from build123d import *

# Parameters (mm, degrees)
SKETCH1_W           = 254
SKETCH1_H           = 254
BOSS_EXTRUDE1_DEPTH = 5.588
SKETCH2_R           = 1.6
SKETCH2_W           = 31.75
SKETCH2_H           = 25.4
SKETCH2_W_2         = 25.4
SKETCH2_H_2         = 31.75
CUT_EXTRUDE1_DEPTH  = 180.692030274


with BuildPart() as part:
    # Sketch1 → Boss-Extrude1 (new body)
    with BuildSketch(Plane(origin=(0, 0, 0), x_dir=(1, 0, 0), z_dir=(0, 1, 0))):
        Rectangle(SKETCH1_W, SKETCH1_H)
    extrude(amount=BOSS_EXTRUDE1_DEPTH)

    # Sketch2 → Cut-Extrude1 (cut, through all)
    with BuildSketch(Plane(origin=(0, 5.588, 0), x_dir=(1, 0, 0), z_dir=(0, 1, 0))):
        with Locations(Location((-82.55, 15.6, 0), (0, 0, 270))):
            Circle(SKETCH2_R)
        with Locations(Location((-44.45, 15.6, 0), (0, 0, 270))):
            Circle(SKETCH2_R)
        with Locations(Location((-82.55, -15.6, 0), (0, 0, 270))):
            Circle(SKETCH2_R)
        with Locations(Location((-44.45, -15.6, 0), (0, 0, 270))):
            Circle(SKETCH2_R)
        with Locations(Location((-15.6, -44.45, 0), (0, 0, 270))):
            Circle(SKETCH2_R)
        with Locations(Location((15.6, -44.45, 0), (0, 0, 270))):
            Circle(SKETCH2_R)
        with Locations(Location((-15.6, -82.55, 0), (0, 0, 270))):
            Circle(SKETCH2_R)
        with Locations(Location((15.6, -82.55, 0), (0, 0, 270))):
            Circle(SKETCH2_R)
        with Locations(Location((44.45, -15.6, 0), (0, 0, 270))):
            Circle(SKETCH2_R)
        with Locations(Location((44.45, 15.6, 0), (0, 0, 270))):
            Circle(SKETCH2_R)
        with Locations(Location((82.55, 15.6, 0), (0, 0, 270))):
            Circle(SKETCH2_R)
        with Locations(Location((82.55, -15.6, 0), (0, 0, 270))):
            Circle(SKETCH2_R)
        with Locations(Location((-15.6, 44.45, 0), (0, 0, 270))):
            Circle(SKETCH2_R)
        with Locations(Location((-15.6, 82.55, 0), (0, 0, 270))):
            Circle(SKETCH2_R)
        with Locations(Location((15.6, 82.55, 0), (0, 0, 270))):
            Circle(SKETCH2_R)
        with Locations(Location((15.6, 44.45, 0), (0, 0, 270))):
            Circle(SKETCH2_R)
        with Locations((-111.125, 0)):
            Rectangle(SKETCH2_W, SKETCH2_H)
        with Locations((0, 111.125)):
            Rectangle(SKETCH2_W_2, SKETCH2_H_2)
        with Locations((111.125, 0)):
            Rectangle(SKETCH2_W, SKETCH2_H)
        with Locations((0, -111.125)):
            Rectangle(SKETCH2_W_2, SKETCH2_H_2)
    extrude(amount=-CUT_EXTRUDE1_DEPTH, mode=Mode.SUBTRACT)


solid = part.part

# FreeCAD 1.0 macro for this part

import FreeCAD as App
import Part
import Sketcher

V = App.Vector
Q = App.Units.Quantity

doc = App.newDocument("Part")
body = doc.addObject("PartDesign::Body", "Body")

sketch1 = body.newObject("Sketcher::SketchObject", "Sketch")
sketch1.AttachmentSupport = (doc.getObject("XZ_Plane"), [""])
sketch1.MapMode = "FlatFace"
sketch1.addGeometry(Part.LineSegment(V(-127, -127, 0), V(-127, 127, 0)), False)
sketch1.addGeometry(Part.LineSegment(V(-127, 127, 0), V(127, 127, 0)), False)
sketch1.addGeometry(Part.LineSegment(V(127, 127, 0), V(127, -127, 0)), False)
sketch1.addGeometry(Part.LineSegment(V(127, -127, 0), V(-127, -127, 0)), False)
sketch1.addConstraint(Sketcher.Constraint("Coincident", 0, 2, 1, 1))
sketch1.addConstraint(Sketcher.Constraint("Coincident", 1, 2, 2, 1))
sketch1.addConstraint(Sketcher.Constraint("Coincident", 2, 2, 3, 1))
sketch1.addConstraint(Sketcher.Constraint("Coincident", 3, 2, 0, 1))
sketch1.addConstraint(Sketcher.Constraint("Vertical", 0))
sketch1.addConstraint(Sketcher.Constraint("Horizontal", 1))
sketch1.addConstraint(Sketcher.Constraint("Vertical", 2))
sketch1.addConstraint(Sketcher.Constraint("Horizontal", 3))
sketch1.addConstraint(Sketcher.Constraint("Symmetric", 0, 2, 2, 2, -1, 1))
sketch1.addConstraint(Sketcher.Constraint("Equal", 3, 0))
sketch1.addConstraint(Sketcher.Constraint("DistanceX", 1, 1, 1, 2, Q("10 in")))
pad1 = body.newObject("PartDesign::Pad", "Pad")
pad1.Profile = sketch1
pad1.Length = Q("0.22 in")
pad1.Reversed = True

sketch2 = body.newObject("Sketcher::SketchObject", "Sketch001")
sketch2.AttachmentSupport = (doc.getObject("XZ_Plane"), [""])
sketch2.MapMode = "FlatFace"
sketch2.AttachmentOffset = App.Placement(V(0, 0, -0.22 * 25.4), App.Rotation())
sketch2.addGeometry(Part.Circle(V(-82.5, -15.6, 0), V(0, 0, 1), 1.6), False)
sketch2.addGeometry(Part.Circle(V(-44.5, -15.6, 0), V(0, 0, 1), 1.6), False)
sketch2.addGeometry(Part.Circle(V(-82.5, 15.6, 0), V(0, 0, 1), 1.6), False)
sketch2.addGeometry(Part.Circle(V(-44.5, 15.6, 0), V(0, 0, 1), 1.6), False)
sketch2.addGeometry(Part.Circle(V(-15.6, 44.5, 0), V(0, 0, 1), 1.6), False)
sketch2.addGeometry(Part.Circle(V(15.6, 44.5, 0), V(0, 0, 1), 1.6), False)
sketch2.addGeometry(Part.Circle(V(-15.6, 82.5, 0), V(0, 0, 1), 1.6), False)
sketch2.addGeometry(Part.Circle(V(15.6, 82.5, 0), V(0, 0, 1), 1.6), False)
sketch2.addGeometry(Part.Circle(V(44.5, 15.6, 0), V(0, 0, 1), 1.6), False)
sketch2.addGeometry(Part.Circle(V(44.5, -15.6, 0), V(0, 0, 1), 1.6), False)
sketch2.addGeometry(Part.Circle(V(82.5, -15.6, 0), V(0, 0, 1), 1.6), False)
sketch2.addGeometry(Part.Circle(V(82.5, 15.6, 0), V(0, 0, 1), 1.6), False)
sketch2.addGeometry(Part.Circle(V(-15.6, -44.5, 0), V(0, 0, 1), 1.6), False)
sketch2.addGeometry(Part.Circle(V(-15.6, -82.5, 0), V(0, 0, 1), 1.6), False)
sketch2.addGeometry(Part.Circle(V(15.6, -82.5, 0), V(0, 0, 1), 1.6), False)
sketch2.addGeometry(Part.Circle(V(15.6, -44.5, 0), V(0, 0, 1), 1.6), False)
sketch2.addGeometry(Part.LineSegment(V(-127, -12.7, 0), V(-127, 12.7, 0)), False)
sketch2.addGeometry(Part.LineSegment(V(-127, 12.7, 0), V(-95.2, 12.7, 0)), False)
sketch2.addGeometry(Part.LineSegment(V(-95.2, 12.7, 0), V(-95.2, -12.7, 0)), False)
sketch2.addGeometry(Part.LineSegment(V(-95.2, -12.7, 0), V(-127, -12.7, 0)), False)
sketch2.addGeometry(Part.LineSegment(V(-12.7, -127, 0), V(-12.7, -95.2, 0)), False)
sketch2.addGeometry(Part.LineSegment(V(-12.7, -95.2, 0), V(12.7, -95.2, 0)), False)
sketch2.addGeometry(Part.LineSegment(V(12.7, -95.2, 0), V(12.7, -127, 0)), False)
sketch2.addGeometry(Part.LineSegment(V(12.7, -127, 0), V(-12.7, -127, 0)), False)
sketch2.addGeometry(Part.LineSegment(V(95.2, -12.7, 0), V(95.2, 12.7, 0)), False)
sketch2.addGeometry(Part.LineSegment(V(95.2, 12.7, 0), V(127, 12.7, 0)), False)
sketch2.addGeometry(Part.LineSegment(V(127, 12.7, 0), V(127, -12.7, 0)), False)
sketch2.addGeometry(Part.LineSegment(V(127, -12.7, 0), V(95.2, -12.7, 0)), False)
sketch2.addGeometry(Part.LineSegment(V(-12.7, 95.2, 0), V(-12.7, 127, 0)), False)
sketch2.addGeometry(Part.LineSegment(V(-12.7, 127, 0), V(12.7, 127, 0)), False)
sketch2.addGeometry(Part.LineSegment(V(12.7, 127, 0), V(12.7, 95.2, 0)), False)
sketch2.addGeometry(Part.LineSegment(V(12.7, 95.2, 0), V(-12.7, 95.2, 0)), False)
sketch2.addConstraint(Sketcher.Constraint("Coincident", 16, 2, 17, 1))
sketch2.addConstraint(Sketcher.Constraint("Coincident", 17, 2, 18, 1))
sketch2.addConstraint(Sketcher.Constraint("Coincident", 18, 2, 19, 1))
sketch2.addConstraint(Sketcher.Constraint("Coincident", 19, 2, 16, 1))
sketch2.addConstraint(Sketcher.Constraint("Coincident", 20, 2, 21, 1))
sketch2.addConstraint(Sketcher.Constraint("Coincident", 21, 2, 22, 1))
sketch2.addConstraint(Sketcher.Constraint("Coincident", 22, 2, 23, 1))
sketch2.addConstraint(Sketcher.Constraint("Coincident", 23, 2, 20, 1))
sketch2.addConstraint(Sketcher.Constraint("Coincident", 24, 2, 25, 1))
sketch2.addConstraint(Sketcher.Constraint("Coincident", 25, 2, 26, 1))
sketch2.addConstraint(Sketcher.Constraint("Coincident", 26, 2, 27, 1))
sketch2.addConstraint(Sketcher.Constraint("Coincident", 27, 2, 24, 1))
sketch2.addConstraint(Sketcher.Constraint("Coincident", 28, 2, 29, 1))
sketch2.addConstraint(Sketcher.Constraint("Coincident", 29, 2, 30, 1))
sketch2.addConstraint(Sketcher.Constraint("Coincident", 30, 2, 31, 1))
sketch2.addConstraint(Sketcher.Constraint("Coincident", 31, 2, 28, 1))
sketch2.addConstraint(Sketcher.Constraint("Vertical", 16))
sketch2.addConstraint(Sketcher.Constraint("Horizontal", 17))
sketch2.addConstraint(Sketcher.Constraint("Vertical", 18))
sketch2.addConstraint(Sketcher.Constraint("Horizontal", 19))
sketch2.addConstraint(Sketcher.Constraint("Vertical", 20))
sketch2.addConstraint(Sketcher.Constraint("Horizontal", 21))
sketch2.addConstraint(Sketcher.Constraint("Vertical", 22))
sketch2.addConstraint(Sketcher.Constraint("Horizontal", 23))
sketch2.addConstraint(Sketcher.Constraint("Vertical", 24))
sketch2.addConstraint(Sketcher.Constraint("Horizontal", 25))
sketch2.addConstraint(Sketcher.Constraint("Vertical", 26))
sketch2.addConstraint(Sketcher.Constraint("Horizontal", 27))
sketch2.addConstraint(Sketcher.Constraint("Vertical", 28))
sketch2.addConstraint(Sketcher.Constraint("Horizontal", 29))
sketch2.addConstraint(Sketcher.Constraint("Vertical", 30))
sketch2.addConstraint(Sketcher.Constraint("Horizontal", 31))
sketch2.addConstraint(Sketcher.Constraint("Equal", 0, 1))
sketch2.addConstraint(Sketcher.Constraint("Equal", 1, 2))
sketch2.addConstraint(Sketcher.Constraint("Equal", 2, 3))
sketch2.addConstraint(Sketcher.Constraint("Equal", 3, 4))
sketch2.addConstraint(Sketcher.Constraint("Equal", 4, 5))
sketch2.addConstraint(Sketcher.Constraint("Equal", 5, 6))
sketch2.addConstraint(Sketcher.Constraint("Equal", 6, 7))
sketch2.addConstraint(Sketcher.Constraint("Equal", 7, 8))
sketch2.addConstraint(Sketcher.Constraint("Equal", 8, 9))
sketch2.addConstraint(Sketcher.Constraint("Equal", 9, 10))
sketch2.addConstraint(Sketcher.Constraint("Equal", 10, 11))
sketch2.addConstraint(Sketcher.Constraint("Equal", 11, 12))
sketch2.addConstraint(Sketcher.Constraint("Equal", 12, 13))
sketch2.addConstraint(Sketcher.Constraint("Equal", 13, 14))
sketch2.addConstraint(Sketcher.Constraint("Equal", 14, 15))
sketch2.addConstraint(Sketcher.Constraint("Symmetric", 1, 3, 8, 3, -1, 1))
sketch2.addConstraint(Sketcher.Constraint("Symmetric", 3, 3, 9, 3, -1, 1))
sketch2.addConstraint(Sketcher.Constraint("Symmetric", 2, 3, 10, 3, -1, 1))
sketch2.addConstraint(Sketcher.Constraint("Symmetric", 0, 3, 11, 3, -1, 1))
sketch2.addConstraint(Sketcher.Constraint("Symmetric", 5, 3, 12, 3, -1, 1))
sketch2.addConstraint(Sketcher.Constraint("Symmetric", 7, 3, 13, 3, -1, 1))
sketch2.addConstraint(Sketcher.Constraint("Symmetric", 6, 3, 14, 3, -1, 1))
sketch2.addConstraint(Sketcher.Constraint("Symmetric", 4, 3, 15, 3, -1, 1))
sketch2.addConstraint(Sketcher.Constraint("Symmetric", 18, 2, 24, 2, -1, 1))
sketch2.addConstraint(Sketcher.Constraint("Symmetric", 16, 2, 26, 2, -1, 1))
sketch2.addConstraint(Sketcher.Constraint("Symmetric", 22, 2, 28, 2, -1, 1))
sketch2.addConstraint(Sketcher.Constraint("Symmetric", 20, 2, 30, 2, -1, 1))
sketch2.addConstraint(Sketcher.Constraint("Symmetric", 4, 3, 5, 3, -2))
sketch2.addConstraint(Sketcher.Constraint("Symmetric", 6, 3, 7, 3, -2))
sketch2.addConstraint(Sketcher.Constraint("Symmetric", 3, 3, 8, 3, -2))
sketch2.addConstraint(Sketcher.Constraint("Symmetric", 0, 3, 10, 3, -2))
sketch2.addConstraint(Sketcher.Constraint("Horizontal", 0, 3, 1, 3))
sketch2.addConstraint(Sketcher.Constraint("Horizontal", 17, 2, 24, 2))
sketch2.addConstraint(Sketcher.Constraint("Vertical", 4, 3, 6, 3))
sketch2.addConstraint(Sketcher.Constraint("Vertical", 23, 2, 28, 2))
sketch2.addConstraint(Sketcher.Constraint("Equal", 31, 16))
sketch2.addConstraint(Sketcher.Constraint("Equal", 27, 20))
sketch2.addConstraint(Sketcher.Constraint("DistanceX", 21, 1, 21, 2, Q("1 in")))
sketch2.addConstraint(Sketcher.Constraint("DistanceX", 16, 2, -1, 1, Q("5 in")))
sketch2.addConstraint(Sketcher.Constraint("DistanceY", 22, 2, -1, 1, Q("5 in")))
sketch2.addConstraint(Sketcher.Constraint("DistanceX", 17, 2, 3, 3, Q("2 in")))
sketch2.addConstraint(Sketcher.Constraint("DistanceY", 20, 2, 12, 3, Q("2 in")))
sketch2.addConstraint(Sketcher.Constraint("DistanceX", 17, 1, 17, 2, Q("1.25 in")))
sketch2.addConstraint(Sketcher.Constraint("DistanceX", 0, 3, 1, 3, Q("1.5 in")))
sketch2.addConstraint(Sketcher.Constraint("DistanceY", 4, 3, 6, 3, Q("1.5 in")))
sketch2.addConstraint(Sketcher.Constraint("Diameter", 0, Q("3.2 mm")))
sketch2.addConstraint(Sketcher.Constraint("DistanceY", 0, 3, -1, 1, Q("15.6 mm")))
sketch2.addConstraint(Sketcher.Constraint("DistanceX", 4, 3, -1, 1, Q("15.6 mm")))
pocket1 = body.newObject("PartDesign::Pocket", "Pocket")
pocket1.Profile = sketch2
pocket1.Type = "ThroughAll"
pocket1.Reversed = True

doc.recompute()
